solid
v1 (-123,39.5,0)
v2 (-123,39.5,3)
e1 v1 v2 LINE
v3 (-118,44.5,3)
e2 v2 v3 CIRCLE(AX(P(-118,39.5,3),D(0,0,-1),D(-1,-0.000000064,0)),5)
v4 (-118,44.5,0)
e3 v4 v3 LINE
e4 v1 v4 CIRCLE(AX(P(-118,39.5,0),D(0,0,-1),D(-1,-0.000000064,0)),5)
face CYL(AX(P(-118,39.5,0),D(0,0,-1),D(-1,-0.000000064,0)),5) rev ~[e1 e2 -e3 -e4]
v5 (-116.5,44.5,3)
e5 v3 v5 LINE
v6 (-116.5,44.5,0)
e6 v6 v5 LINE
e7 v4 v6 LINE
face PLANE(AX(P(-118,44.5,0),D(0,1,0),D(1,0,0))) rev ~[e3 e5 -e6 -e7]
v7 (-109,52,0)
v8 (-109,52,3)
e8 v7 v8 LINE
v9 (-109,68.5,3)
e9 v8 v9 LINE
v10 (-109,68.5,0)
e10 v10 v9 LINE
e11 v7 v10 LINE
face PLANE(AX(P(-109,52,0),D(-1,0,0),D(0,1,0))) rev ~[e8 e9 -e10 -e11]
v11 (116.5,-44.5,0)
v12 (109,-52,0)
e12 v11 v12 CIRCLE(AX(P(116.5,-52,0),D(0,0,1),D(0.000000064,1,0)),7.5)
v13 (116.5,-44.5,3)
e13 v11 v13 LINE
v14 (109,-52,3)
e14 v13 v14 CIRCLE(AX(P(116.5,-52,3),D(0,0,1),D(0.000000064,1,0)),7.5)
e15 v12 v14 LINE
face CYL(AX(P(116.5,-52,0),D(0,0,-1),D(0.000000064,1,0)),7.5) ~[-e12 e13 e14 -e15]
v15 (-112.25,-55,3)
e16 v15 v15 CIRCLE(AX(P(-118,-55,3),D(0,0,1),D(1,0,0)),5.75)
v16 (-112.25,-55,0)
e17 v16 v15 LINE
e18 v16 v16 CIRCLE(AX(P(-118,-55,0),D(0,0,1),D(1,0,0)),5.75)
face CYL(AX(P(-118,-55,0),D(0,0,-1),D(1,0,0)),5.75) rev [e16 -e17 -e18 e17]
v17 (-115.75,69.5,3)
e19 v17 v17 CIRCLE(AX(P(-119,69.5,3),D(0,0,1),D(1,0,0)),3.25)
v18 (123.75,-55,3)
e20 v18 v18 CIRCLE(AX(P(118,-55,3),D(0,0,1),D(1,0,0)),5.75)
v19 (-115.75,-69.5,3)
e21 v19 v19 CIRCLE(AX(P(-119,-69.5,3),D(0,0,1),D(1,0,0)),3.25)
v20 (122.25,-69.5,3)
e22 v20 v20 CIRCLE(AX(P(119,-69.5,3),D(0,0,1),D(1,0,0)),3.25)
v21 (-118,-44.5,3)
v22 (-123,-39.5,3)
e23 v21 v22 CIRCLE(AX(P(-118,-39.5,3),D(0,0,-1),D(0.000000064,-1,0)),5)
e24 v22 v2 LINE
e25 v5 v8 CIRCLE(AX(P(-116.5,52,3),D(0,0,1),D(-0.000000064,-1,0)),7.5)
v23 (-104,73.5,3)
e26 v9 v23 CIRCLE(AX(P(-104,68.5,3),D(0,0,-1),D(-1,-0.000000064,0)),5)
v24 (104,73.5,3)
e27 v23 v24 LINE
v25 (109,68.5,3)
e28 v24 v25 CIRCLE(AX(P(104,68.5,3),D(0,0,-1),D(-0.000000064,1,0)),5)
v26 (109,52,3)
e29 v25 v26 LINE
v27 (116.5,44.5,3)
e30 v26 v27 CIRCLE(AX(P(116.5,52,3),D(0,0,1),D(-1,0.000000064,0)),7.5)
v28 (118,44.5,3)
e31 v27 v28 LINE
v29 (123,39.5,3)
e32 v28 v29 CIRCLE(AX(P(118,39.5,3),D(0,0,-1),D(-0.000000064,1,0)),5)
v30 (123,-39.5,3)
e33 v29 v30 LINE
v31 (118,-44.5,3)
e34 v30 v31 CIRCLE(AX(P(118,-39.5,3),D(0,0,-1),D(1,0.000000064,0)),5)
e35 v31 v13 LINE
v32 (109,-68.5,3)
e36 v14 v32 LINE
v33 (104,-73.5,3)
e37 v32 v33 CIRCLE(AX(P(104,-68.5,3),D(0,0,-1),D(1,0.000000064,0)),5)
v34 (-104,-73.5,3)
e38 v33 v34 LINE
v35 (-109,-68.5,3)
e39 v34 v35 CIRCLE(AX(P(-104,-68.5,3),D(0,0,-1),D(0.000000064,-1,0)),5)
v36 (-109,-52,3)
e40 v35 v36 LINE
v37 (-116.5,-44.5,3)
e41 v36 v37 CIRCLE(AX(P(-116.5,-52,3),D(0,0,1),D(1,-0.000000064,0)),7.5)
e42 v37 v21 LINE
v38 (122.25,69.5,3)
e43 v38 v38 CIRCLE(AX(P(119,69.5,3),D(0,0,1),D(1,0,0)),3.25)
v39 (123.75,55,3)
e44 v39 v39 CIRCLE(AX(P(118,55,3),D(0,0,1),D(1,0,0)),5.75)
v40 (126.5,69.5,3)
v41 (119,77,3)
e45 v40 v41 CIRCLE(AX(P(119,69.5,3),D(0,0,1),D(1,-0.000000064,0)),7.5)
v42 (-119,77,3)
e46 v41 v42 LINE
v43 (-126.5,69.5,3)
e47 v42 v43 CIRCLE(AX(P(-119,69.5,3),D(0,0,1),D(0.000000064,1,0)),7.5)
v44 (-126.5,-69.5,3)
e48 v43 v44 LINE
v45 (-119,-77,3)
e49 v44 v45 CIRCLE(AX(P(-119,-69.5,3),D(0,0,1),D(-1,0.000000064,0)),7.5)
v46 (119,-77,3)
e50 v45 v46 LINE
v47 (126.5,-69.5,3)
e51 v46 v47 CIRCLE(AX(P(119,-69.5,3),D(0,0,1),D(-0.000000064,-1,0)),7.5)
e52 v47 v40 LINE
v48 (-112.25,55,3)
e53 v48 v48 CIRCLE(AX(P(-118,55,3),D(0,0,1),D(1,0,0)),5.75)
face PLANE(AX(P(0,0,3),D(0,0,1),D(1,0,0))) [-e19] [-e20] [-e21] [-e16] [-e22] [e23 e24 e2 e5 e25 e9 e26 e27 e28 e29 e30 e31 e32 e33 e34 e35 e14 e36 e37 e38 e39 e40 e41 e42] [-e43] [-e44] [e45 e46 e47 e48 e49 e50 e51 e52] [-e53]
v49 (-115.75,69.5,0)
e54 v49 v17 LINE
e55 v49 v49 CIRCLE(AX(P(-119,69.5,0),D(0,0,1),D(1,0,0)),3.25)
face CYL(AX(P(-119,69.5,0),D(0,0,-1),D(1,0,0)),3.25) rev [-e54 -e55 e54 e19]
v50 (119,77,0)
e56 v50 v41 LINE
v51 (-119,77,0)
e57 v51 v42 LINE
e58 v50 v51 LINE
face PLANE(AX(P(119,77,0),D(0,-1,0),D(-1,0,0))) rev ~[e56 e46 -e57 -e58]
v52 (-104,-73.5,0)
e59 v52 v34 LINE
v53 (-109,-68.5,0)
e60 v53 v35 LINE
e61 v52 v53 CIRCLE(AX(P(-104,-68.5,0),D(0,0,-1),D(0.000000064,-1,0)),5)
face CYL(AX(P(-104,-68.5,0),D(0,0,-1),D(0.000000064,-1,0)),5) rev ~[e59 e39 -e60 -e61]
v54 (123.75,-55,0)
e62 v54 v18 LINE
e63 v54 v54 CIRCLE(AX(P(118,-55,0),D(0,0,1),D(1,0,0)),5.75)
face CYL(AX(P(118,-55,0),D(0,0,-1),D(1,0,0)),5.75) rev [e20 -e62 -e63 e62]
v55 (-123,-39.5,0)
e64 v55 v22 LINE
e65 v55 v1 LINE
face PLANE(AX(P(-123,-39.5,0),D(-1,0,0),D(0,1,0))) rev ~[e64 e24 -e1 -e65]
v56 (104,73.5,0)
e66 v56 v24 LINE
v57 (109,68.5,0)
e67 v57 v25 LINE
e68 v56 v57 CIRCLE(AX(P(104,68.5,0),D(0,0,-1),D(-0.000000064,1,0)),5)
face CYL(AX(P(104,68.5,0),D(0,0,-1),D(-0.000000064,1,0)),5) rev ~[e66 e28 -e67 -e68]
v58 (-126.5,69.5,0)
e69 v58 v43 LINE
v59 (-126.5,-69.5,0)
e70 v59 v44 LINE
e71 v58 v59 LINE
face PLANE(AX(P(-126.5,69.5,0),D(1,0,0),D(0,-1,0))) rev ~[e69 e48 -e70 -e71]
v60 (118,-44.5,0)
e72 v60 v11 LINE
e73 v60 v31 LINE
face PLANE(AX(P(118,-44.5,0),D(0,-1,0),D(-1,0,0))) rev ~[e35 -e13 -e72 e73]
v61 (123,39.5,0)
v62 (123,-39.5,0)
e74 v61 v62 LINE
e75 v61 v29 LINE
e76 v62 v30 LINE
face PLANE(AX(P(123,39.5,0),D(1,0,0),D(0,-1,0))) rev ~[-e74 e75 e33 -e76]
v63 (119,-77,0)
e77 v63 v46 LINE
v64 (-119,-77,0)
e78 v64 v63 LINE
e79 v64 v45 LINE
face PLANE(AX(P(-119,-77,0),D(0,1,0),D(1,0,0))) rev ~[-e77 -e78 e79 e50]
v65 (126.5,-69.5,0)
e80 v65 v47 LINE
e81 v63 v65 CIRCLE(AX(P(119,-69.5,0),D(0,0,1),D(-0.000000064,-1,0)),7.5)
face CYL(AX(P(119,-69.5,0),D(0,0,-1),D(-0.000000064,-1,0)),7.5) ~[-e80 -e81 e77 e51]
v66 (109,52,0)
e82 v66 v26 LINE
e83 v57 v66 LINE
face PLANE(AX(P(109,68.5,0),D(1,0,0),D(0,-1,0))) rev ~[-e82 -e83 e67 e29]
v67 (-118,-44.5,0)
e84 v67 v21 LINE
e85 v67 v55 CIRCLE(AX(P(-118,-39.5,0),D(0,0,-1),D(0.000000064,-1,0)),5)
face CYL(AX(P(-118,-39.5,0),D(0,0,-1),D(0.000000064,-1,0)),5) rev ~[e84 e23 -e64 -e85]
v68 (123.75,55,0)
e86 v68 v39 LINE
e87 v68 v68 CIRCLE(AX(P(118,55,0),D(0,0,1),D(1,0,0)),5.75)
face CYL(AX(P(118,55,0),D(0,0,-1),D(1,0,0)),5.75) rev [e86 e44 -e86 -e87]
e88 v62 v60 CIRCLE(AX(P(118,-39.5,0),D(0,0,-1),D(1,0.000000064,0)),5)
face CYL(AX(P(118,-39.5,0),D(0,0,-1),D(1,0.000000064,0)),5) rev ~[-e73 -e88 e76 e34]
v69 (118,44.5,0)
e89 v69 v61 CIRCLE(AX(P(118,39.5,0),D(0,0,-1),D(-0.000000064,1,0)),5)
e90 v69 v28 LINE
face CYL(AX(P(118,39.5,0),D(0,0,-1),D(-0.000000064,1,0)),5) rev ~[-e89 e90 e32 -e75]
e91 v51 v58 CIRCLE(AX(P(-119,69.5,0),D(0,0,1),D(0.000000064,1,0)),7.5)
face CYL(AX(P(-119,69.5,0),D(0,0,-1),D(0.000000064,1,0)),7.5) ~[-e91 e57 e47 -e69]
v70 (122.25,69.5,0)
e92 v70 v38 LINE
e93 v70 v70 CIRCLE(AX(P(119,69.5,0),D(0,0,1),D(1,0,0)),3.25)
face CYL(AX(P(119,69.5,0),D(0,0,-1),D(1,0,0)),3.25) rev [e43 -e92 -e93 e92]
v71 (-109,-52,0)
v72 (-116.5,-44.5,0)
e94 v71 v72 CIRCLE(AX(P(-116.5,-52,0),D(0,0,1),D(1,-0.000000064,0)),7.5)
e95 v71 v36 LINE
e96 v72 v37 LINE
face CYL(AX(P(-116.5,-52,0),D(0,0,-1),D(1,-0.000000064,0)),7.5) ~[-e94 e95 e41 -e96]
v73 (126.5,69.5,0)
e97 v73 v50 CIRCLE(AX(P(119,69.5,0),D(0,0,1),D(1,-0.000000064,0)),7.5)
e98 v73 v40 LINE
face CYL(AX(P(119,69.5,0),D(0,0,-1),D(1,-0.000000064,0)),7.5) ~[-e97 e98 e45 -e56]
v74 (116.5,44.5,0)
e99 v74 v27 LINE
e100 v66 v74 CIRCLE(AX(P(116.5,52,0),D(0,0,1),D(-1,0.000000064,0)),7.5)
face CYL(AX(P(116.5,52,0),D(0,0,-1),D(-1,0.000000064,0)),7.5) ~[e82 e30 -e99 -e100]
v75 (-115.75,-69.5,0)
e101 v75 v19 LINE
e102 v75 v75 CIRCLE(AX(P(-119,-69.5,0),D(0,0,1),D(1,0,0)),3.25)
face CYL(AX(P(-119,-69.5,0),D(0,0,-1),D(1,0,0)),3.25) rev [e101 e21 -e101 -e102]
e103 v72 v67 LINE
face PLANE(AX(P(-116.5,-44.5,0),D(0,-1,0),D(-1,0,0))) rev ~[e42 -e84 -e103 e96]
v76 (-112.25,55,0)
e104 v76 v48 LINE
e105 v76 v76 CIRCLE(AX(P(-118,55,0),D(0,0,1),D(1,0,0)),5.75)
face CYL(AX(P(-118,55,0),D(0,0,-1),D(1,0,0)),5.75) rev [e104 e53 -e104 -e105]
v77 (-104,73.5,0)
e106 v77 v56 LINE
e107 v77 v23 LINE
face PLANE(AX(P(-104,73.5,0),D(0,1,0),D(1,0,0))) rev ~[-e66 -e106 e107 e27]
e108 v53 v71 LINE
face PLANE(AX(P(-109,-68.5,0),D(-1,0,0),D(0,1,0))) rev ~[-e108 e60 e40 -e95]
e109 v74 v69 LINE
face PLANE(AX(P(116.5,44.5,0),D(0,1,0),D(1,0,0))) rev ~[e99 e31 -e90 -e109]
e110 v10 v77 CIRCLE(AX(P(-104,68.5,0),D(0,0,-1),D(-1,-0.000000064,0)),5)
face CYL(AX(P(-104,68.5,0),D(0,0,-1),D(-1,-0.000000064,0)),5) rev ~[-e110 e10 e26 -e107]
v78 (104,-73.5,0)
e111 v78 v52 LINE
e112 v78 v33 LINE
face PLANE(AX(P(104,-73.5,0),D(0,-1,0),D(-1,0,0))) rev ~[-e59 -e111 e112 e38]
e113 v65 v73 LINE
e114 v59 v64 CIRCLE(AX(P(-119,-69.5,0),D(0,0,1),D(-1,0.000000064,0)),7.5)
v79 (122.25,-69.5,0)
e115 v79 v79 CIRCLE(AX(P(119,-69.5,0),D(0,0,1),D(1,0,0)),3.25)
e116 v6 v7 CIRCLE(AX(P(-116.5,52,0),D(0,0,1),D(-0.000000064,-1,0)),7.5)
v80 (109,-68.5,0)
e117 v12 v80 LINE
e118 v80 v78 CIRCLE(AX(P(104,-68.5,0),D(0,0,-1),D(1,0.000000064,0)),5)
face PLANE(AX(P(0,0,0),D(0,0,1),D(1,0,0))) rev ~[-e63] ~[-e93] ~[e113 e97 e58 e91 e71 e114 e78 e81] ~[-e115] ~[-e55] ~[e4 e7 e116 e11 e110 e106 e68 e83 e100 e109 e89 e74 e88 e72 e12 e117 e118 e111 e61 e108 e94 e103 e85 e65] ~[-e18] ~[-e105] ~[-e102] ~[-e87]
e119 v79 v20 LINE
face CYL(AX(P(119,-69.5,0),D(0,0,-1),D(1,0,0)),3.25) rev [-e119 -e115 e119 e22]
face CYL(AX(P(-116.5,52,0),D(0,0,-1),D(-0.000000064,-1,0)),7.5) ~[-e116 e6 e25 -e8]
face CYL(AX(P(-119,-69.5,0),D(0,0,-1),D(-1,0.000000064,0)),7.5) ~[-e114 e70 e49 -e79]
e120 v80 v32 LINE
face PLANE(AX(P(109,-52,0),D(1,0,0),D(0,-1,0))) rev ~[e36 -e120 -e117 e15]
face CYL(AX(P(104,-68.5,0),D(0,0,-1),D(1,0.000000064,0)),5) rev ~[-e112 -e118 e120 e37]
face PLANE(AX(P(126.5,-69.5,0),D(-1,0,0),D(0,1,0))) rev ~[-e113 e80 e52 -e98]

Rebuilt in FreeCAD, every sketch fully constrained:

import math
import FreeCAD as App
import Part
import Sketcher
Q = App.Units.Quantity

doc = App.newDocument("Part")
params = doc.addObject("Spreadsheet::Sheet", "Params")
for row, (alias, value) in enumerate([
    ("sketch1_radius", "5 mm"),
    ("sketch1_diameter", "6.5 mm"),
    ("sketch1_diameter2", "11.5 mm"),
    ("sketch1_radius2", "7.5 mm"),
    ("sketch1_width", "238 mm"),
    ("pad1_length", "3 mm"),
], start=1):
    params.set(f"A{row}", alias)
    params.set(f"B{row}", "=" + value)
    params.setAlias(f"B{row}", alias)

body = doc.addObject("PartDesign::Body", "Body")

# Sketch on XY plane
sketch1 = body.newObject("Sketcher::SketchObject", "Sketch")
sketch1.AttachmentSupport = (doc.getObject("XY_Plane"), [""])
sketch1.MapMode = "FlatFace"
sketch1.addGeometry([
    Part.LineSegment(App.Vector(119, 77, 0), App.Vector(-119, 77, 0)),  # 0
    Part.ArcOfCircle(Part.Circle(App.Vector(-119, 69.5, 0), App.Vector(0, 0, 1), 7.5), math.radians(89.999996), math.radians(180.000004)),  # 1
    Part.LineSegment(App.Vector(-126.5, 69.5, 0), App.Vector(-126.5, -69.5, 0)),  # 2
    Part.ArcOfCircle(Part.Circle(App.Vector(-119, -69.5, 0), App.Vector(0, 0, 1), 7.5), math.radians(179.999996), math.radians(270.000004)),  # 3
    Part.LineSegment(App.Vector(-119, -77, 0), App.Vector(119, -77, 0)),  # 4
    Part.ArcOfCircle(Part.Circle(App.Vector(119, -69.5, 0), App.Vector(0, 0, 1), 7.5), math.radians(-90.000004), math.radians(0.000004)),  # 5
    Part.LineSegment(App.Vector(126.5, -69.5, 0), App.Vector(126.5, 69.5, 0)),  # 6
    Part.ArcOfCircle(Part.Circle(App.Vector(119, 69.5, 0), App.Vector(0, 0, 1), 7.5), math.radians(-0.000004), math.radians(90.000004)),  # 7
    Part.Circle(App.Vector(-119, -69.5, 0), App.Vector(0, 0, 1), 3.25),  # 8
    Part.Circle(App.Vector(-118, -55, 0), App.Vector(0, 0, 1), 5.75),  # 9
    Part.Circle(App.Vector(119, -69.5, 0), App.Vector(0, 0, 1), 3.25),  # 10
    Part.Circle(App.Vector(118, -55, 0), App.Vector(0, 0, 1), 5.75),  # 11
    Part.Circle(App.Vector(-118, 55, 0), App.Vector(0, 0, 1), 5.75),  # 12
    Part.Circle(App.Vector(-119, 69.5, 0), App.Vector(0, 0, 1), 3.25),  # 13
    Part.ArcOfCircle(Part.Circle(App.Vector(-104, 68.5, 0), App.Vector(0, 0, 1), 5), math.radians(89.999996), math.radians(180.000004)),  # 14
    Part.LineSegment(App.Vector(-104, 73.5, 0), App.Vector(104, 73.5, 0)),  # 15
    Part.ArcOfCircle(Part.Circle(App.Vector(104, 68.5, 0), App.Vector(0, 0, 1), 5), math.radians(-0.000004), math.radians(90.000004)),  # 16
    Part.LineSegment(App.Vector(109, 68.5, 0), App.Vector(109, 52, 0)),  # 17
    Part.ArcOfCircle(Part.Circle(App.Vector(116.5, 52, 0), App.Vector(0, 0, 1), 7.5), math.radians(179.999996), math.radians(270.000004)),  # 18
    Part.LineSegment(App.Vector(116.5, 44.5, 0), App.Vector(118, 44.5, 0)),  # 19
    Part.ArcOfCircle(Part.Circle(App.Vector(118, 39.5, 0), App.Vector(0, 0, 1), 5), math.radians(-0.000004), math.radians(90.000004)),  # 20
    Part.LineSegment(App.Vector(123, 39.5, 0), App.Vector(123, -39.5, 0)),  # 21
    Part.ArcOfCircle(Part.Circle(App.Vector(118, -39.5, 0), App.Vector(0, 0, 1), 5), math.radians(-90.000004), math.radians(0.000004)),  # 22
    Part.LineSegment(App.Vector(118, -44.5, 0), App.Vector(116.5, -44.5, 0)),  # 23
    Part.ArcOfCircle(Part.Circle(App.Vector(116.5, -52, 0), App.Vector(0, 0, 1), 7.5), math.radians(89.999996), math.radians(180.000004)),  # 24
    Part.LineSegment(App.Vector(109, -52, 0), App.Vector(109, -68.5, 0)),  # 25
    Part.ArcOfCircle(Part.Circle(App.Vector(104, -68.5, 0), App.Vector(0, 0, 1), 5), math.radians(-90.000004), math.radians(0.000004)),  # 26
    Part.LineSegment(App.Vector(104, -73.5, 0), App.Vector(-104, -73.5, 0)),  # 27
    Part.ArcOfCircle(Part.Circle(App.Vector(-104, -68.5, 0), App.Vector(0, 0, 1), 5), math.radians(179.999996), math.radians(270.000004)),  # 28
    Part.LineSegment(App.Vector(-109, -68.5, 0), App.Vector(-109, -52, 0)),  # 29
    Part.ArcOfCircle(Part.Circle(App.Vector(-116.5, -52, 0), App.Vector(0, 0, 1), 7.5), math.radians(-0.000004), math.radians(90.000004)),  # 30
    Part.LineSegment(App.Vector(-116.5, -44.5, 0), App.Vector(-118, -44.5, 0)),  # 31
    Part.ArcOfCircle(Part.Circle(App.Vector(-118, -39.5, 0), App.Vector(0, 0, 1), 5), math.radians(179.999996), math.radians(270.000004)),  # 32
    Part.LineSegment(App.Vector(-123, -39.5, 0), App.Vector(-123, 39.5, 0)),  # 33
    Part.ArcOfCircle(Part.Circle(App.Vector(-118, 39.5, 0), App.Vector(0, 0, 1), 5), math.radians(89.999996), math.radians(180.000004)),  # 34
    Part.LineSegment(App.Vector(-118, 44.5, 0), App.Vector(-116.5, 44.5, 0)),  # 35
    Part.ArcOfCircle(Part.Circle(App.Vector(-116.5, 52, 0), App.Vector(0, 0, 1), 7.5), math.radians(-90.000004), math.radians(0.000004)),  # 36
    Part.LineSegment(App.Vector(-109, 52, 0), App.Vector(-109, 68.5, 0)),  # 37
    Part.Circle(App.Vector(118, 55, 0), App.Vector(0, 0, 1), 5.75),  # 38
    Part.Circle(App.Vector(119, 69.5, 0), App.Vector(0, 0, 1), 3.25),  # 39
], False)
sketch1.addConstraint([
    Sketcher.Constraint("Tangent", 0, 2, 1, 1),
    Sketcher.Constraint("Tangent", 1, 2, 2, 1),
    Sketcher.Constraint("Tangent", 2, 2, 3, 1),
    Sketcher.Constraint("Tangent", 3, 2, 4, 1),
    Sketcher.Constraint("Tangent", 4, 2, 5, 1),
    Sketcher.Constraint("Tangent", 5, 2, 6, 1),
    Sketcher.Constraint("Tangent", 6, 2, 7, 1),
    Sketcher.Constraint("Tangent", 7, 2, 0, 1),
    Sketcher.Constraint("Tangent", 14, 1, 15, 1),
    Sketcher.Constraint("Tangent", 15, 2, 16, 2),
    Sketcher.Constraint("Tangent", 16, 1, 17, 1),
    Sketcher.Constraint("Tangent", 17, 2, 18, 1),
    Sketcher.Constraint("Tangent", 18, 2, 19, 1),
    Sketcher.Constraint("Tangent", 19, 2, 20, 2),
    Sketcher.Constraint("Tangent", 20, 1, 21, 1),
    Sketcher.Constraint("Tangent", 21, 2, 22, 2),
    Sketcher.Constraint("Tangent", 22, 1, 23, 1),
    Sketcher.Constraint("Tangent", 23, 2, 24, 1),
    Sketcher.Constraint("Tangent", 24, 2, 25, 1),
    Sketcher.Constraint("Tangent", 25, 2, 26, 2),
    Sketcher.Constraint("Tangent", 26, 1, 27, 1),
    Sketcher.Constraint("Tangent", 27, 2, 28, 2),
    Sketcher.Constraint("Tangent", 28, 1, 29, 1),
    Sketcher.Constraint("Tangent", 29, 2, 30, 1),
    Sketcher.Constraint("Tangent", 30, 2, 31, 1),
    Sketcher.Constraint("Tangent", 31, 2, 32, 2),
    Sketcher.Constraint("Tangent", 32, 1, 33, 1),
    Sketcher.Constraint("Tangent", 33, 2, 34, 2),
    Sketcher.Constraint("Tangent", 34, 1, 35, 1),
    Sketcher.Constraint("Tangent", 35, 2, 36, 1),
    Sketcher.Constraint("Tangent", 36, 2, 37, 1),
    Sketcher.Constraint("Tangent", 37, 2, 14, 2),
    Sketcher.Constraint("Horizontal", 0),
    Sketcher.Constraint("Vertical", 2),
    Sketcher.Constraint("Horizontal", 4),
    Sketcher.Constraint("Vertical", 6),
    Sketcher.Constraint("Horizontal", 15),
    Sketcher.Constraint("Vertical", 17),
    Sketcher.Constraint("Horizontal", 19),
    Sketcher.Constraint("Vertical", 21),
    Sketcher.Constraint("Horizontal", 23),
    Sketcher.Constraint("Vertical", 25),
    Sketcher.Constraint("Horizontal", 27),
    Sketcher.Constraint("Vertical", 29),
    Sketcher.Constraint("Horizontal", 31),
    Sketcher.Constraint("Vertical", 33),
    Sketcher.Constraint("Horizontal", 35),
    Sketcher.Constraint("Vertical", 37),
    Sketcher.Constraint("Coincident", 8, 3, 3, 3),
    Sketcher.Constraint("Coincident", 10, 3, 5, 3),
    Sketcher.Constraint("Coincident", 13, 3, 1, 3),
    Sketcher.Constraint("Coincident", 39, 3, 7, 3),
    Sketcher.Constraint("Equal", 1, 3),
    Sketcher.Constraint("Equal", 3, 5),
    Sketcher.Constraint("Equal", 5, 7),
    Sketcher.Constraint("Equal", 8, 10),
    Sketcher.Constraint("Equal", 9, 11),
    Sketcher.Constraint("Equal", 11, 12),
    Sketcher.Constraint("Equal", 10, 13),
    Sketcher.Constraint("Equal", 14, 16),
    Sketcher.Constraint("Equal", 7, 18),
    Sketcher.Constraint("Equal", 16, 20),
    Sketcher.Constraint("Equal", 20, 22),
    Sketcher.Constraint("Equal", 18, 24),
    Sketcher.Constraint("Equal", 22, 26),
    Sketcher.Constraint("Equal", 26, 28),
    Sketcher.Constraint("Equal", 24, 30),
    Sketcher.Constraint("Equal", 28, 32),
    Sketcher.Constraint("Equal", 32, 34),
    Sketcher.Constraint("Equal", 30, 36),
    Sketcher.Constraint("Equal", 12, 38),
    Sketcher.Constraint("Equal", 13, 39),
    Sketcher.Constraint("Symmetric", 1, 3, 5, 3, -1, 1),
    Sketcher.Constraint("Symmetric", 11, 3, 12, 3, -1, 1),
    Sketcher.Constraint("Symmetric", 14, 3, 26, 3, -1, 1),
    Sketcher.Constraint("Symmetric", 18, 3, 30, 3, -1, 1),
    Sketcher.Constraint("Symmetric", 22, 3, 34, 3, -1, 1),
    Sketcher.Constraint("Symmetric", 9, 3, 38, 3, -1, 1),
    Sketcher.Constraint("Symmetric", 9, 3, 11, 3, -2),
    Sketcher.Constraint("Symmetric", 24, 3, 30, 3, -2),
    Sketcher.Constraint("Vertical", 11, 3, 20, 3),
    Sketcher.Constraint("Radius", 14, Q("5 mm")),
    Sketcher.Constraint("Diameter", 8, Q("6.5 mm")),
    Sketcher.Constraint("Diameter", 9, Q("11.5 mm")),
    Sketcher.Constraint("Radius", 1, Q("7.5 mm")),
    Sketcher.Constraint("DistanceX", 0, 2, 0, 1, Q("238 mm")),
    Sketcher.Constraint("DistanceX", 15, 1, 15, 2, Q("208 mm")),
    Sketcher.Constraint("DistanceY", 2, 2, 2, 1, Q("139 mm")),
    Sketcher.Constraint("DistanceY", 21, 2, 21, 1, Q("79 mm")),
    Sketcher.Constraint("DistanceX", 19, 1, 19, 2, Q("1.5 mm")),
    Sketcher.Constraint("DistanceY", 17, 2, 17, 1, Q("16.5 mm")),
    Sketcher.Constraint("DistanceY", 9, 3, -1, 1, Q("55 mm")),
])
sketch1.setExpression("Constraints[81]", "Params.sketch1_radius")
sketch1.setExpression("Constraints[82]", "Params.sketch1_diameter")
sketch1.setExpression("Constraints[83]", "Params.sketch1_diameter2")
sketch1.setExpression("Constraints[84]", "Params.sketch1_radius2")
sketch1.setExpression("Constraints[85]", "Params.sketch1_width")
pad1 = body.newObject("PartDesign::Pad", "Pad")
pad1.Profile = sketch1
pad1.setExpression("Length", "Params.pad1_length")

doc.recompute()
